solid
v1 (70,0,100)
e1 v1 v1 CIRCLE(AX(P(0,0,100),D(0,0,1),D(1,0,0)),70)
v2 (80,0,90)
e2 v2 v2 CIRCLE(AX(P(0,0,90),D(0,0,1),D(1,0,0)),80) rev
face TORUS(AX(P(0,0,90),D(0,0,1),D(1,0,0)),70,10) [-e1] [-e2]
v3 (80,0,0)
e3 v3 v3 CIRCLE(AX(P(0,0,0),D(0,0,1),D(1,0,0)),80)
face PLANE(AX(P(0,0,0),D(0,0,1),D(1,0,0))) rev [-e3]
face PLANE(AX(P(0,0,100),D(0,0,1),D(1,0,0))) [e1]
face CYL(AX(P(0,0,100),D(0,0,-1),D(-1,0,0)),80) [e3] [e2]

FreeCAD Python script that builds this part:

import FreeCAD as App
import Part
import Sketcher


def edges_at(feature, points):
    """Names of the edges that pass closest to the given points."""
    edges = feature.Shape.Edges
    near = lambda p: min(range(len(edges)), key=lambda i: edges[i].distToShape(Part.Vertex(*p))[0])
    return sorted({f"Edge{near(p) + 1}" for p in points})

doc = App.newDocument("Part")
params = doc.addObject("Spreadsheet::Sheet", "Params")
for row, (alias, value) in enumerate([
    ("sketch1_diameter", "160 mm"),
    ("pad1_length", "100 mm"),
    ("fillet_radius", "10 mm"),
], start=1):
    params.set(f"A{row}", alias)
    params.set(f"B{row}", "=" + value)
    params.setAlias(f"B{row}", alias)

body = doc.addObject("PartDesign::Body", "Body")

# Sketch on XY plane
sketch1 = body.newObject("Sketcher::SketchObject", "Sketch")
sketch1.AttachmentSupport = (doc.getObject("XY_Plane"), [""])
sketch1.MapMode = "FlatFace"
sketch1.addGeometry(Part.Circle(App.Vector(0, 0, 0), App.Vector(0, 0, 1), 80), False)
sketch1.addConstraint([
    Sketcher.Constraint("Coincident", 0, 3, -1, 1),
    Sketcher.Constraint("Diameter", 0, 160.0),
])
sketch1.setExpression("Constraints[1]", "Params.sketch1_diameter")
pad1 = body.newObject("PartDesign::Pad", "Pad")
pad1.Profile = sketch1
pad1.setExpression("Length", "Params.pad1_length")
doc.recompute()

fillet = body.newObject("PartDesign::Fillet", "Fillet")
fillet.Base = (pad1, edges_at(pad1, [(-80, 0, 100)]))
fillet.setExpression("Radius", "Params.fillet_radius")

doc.recompute()
